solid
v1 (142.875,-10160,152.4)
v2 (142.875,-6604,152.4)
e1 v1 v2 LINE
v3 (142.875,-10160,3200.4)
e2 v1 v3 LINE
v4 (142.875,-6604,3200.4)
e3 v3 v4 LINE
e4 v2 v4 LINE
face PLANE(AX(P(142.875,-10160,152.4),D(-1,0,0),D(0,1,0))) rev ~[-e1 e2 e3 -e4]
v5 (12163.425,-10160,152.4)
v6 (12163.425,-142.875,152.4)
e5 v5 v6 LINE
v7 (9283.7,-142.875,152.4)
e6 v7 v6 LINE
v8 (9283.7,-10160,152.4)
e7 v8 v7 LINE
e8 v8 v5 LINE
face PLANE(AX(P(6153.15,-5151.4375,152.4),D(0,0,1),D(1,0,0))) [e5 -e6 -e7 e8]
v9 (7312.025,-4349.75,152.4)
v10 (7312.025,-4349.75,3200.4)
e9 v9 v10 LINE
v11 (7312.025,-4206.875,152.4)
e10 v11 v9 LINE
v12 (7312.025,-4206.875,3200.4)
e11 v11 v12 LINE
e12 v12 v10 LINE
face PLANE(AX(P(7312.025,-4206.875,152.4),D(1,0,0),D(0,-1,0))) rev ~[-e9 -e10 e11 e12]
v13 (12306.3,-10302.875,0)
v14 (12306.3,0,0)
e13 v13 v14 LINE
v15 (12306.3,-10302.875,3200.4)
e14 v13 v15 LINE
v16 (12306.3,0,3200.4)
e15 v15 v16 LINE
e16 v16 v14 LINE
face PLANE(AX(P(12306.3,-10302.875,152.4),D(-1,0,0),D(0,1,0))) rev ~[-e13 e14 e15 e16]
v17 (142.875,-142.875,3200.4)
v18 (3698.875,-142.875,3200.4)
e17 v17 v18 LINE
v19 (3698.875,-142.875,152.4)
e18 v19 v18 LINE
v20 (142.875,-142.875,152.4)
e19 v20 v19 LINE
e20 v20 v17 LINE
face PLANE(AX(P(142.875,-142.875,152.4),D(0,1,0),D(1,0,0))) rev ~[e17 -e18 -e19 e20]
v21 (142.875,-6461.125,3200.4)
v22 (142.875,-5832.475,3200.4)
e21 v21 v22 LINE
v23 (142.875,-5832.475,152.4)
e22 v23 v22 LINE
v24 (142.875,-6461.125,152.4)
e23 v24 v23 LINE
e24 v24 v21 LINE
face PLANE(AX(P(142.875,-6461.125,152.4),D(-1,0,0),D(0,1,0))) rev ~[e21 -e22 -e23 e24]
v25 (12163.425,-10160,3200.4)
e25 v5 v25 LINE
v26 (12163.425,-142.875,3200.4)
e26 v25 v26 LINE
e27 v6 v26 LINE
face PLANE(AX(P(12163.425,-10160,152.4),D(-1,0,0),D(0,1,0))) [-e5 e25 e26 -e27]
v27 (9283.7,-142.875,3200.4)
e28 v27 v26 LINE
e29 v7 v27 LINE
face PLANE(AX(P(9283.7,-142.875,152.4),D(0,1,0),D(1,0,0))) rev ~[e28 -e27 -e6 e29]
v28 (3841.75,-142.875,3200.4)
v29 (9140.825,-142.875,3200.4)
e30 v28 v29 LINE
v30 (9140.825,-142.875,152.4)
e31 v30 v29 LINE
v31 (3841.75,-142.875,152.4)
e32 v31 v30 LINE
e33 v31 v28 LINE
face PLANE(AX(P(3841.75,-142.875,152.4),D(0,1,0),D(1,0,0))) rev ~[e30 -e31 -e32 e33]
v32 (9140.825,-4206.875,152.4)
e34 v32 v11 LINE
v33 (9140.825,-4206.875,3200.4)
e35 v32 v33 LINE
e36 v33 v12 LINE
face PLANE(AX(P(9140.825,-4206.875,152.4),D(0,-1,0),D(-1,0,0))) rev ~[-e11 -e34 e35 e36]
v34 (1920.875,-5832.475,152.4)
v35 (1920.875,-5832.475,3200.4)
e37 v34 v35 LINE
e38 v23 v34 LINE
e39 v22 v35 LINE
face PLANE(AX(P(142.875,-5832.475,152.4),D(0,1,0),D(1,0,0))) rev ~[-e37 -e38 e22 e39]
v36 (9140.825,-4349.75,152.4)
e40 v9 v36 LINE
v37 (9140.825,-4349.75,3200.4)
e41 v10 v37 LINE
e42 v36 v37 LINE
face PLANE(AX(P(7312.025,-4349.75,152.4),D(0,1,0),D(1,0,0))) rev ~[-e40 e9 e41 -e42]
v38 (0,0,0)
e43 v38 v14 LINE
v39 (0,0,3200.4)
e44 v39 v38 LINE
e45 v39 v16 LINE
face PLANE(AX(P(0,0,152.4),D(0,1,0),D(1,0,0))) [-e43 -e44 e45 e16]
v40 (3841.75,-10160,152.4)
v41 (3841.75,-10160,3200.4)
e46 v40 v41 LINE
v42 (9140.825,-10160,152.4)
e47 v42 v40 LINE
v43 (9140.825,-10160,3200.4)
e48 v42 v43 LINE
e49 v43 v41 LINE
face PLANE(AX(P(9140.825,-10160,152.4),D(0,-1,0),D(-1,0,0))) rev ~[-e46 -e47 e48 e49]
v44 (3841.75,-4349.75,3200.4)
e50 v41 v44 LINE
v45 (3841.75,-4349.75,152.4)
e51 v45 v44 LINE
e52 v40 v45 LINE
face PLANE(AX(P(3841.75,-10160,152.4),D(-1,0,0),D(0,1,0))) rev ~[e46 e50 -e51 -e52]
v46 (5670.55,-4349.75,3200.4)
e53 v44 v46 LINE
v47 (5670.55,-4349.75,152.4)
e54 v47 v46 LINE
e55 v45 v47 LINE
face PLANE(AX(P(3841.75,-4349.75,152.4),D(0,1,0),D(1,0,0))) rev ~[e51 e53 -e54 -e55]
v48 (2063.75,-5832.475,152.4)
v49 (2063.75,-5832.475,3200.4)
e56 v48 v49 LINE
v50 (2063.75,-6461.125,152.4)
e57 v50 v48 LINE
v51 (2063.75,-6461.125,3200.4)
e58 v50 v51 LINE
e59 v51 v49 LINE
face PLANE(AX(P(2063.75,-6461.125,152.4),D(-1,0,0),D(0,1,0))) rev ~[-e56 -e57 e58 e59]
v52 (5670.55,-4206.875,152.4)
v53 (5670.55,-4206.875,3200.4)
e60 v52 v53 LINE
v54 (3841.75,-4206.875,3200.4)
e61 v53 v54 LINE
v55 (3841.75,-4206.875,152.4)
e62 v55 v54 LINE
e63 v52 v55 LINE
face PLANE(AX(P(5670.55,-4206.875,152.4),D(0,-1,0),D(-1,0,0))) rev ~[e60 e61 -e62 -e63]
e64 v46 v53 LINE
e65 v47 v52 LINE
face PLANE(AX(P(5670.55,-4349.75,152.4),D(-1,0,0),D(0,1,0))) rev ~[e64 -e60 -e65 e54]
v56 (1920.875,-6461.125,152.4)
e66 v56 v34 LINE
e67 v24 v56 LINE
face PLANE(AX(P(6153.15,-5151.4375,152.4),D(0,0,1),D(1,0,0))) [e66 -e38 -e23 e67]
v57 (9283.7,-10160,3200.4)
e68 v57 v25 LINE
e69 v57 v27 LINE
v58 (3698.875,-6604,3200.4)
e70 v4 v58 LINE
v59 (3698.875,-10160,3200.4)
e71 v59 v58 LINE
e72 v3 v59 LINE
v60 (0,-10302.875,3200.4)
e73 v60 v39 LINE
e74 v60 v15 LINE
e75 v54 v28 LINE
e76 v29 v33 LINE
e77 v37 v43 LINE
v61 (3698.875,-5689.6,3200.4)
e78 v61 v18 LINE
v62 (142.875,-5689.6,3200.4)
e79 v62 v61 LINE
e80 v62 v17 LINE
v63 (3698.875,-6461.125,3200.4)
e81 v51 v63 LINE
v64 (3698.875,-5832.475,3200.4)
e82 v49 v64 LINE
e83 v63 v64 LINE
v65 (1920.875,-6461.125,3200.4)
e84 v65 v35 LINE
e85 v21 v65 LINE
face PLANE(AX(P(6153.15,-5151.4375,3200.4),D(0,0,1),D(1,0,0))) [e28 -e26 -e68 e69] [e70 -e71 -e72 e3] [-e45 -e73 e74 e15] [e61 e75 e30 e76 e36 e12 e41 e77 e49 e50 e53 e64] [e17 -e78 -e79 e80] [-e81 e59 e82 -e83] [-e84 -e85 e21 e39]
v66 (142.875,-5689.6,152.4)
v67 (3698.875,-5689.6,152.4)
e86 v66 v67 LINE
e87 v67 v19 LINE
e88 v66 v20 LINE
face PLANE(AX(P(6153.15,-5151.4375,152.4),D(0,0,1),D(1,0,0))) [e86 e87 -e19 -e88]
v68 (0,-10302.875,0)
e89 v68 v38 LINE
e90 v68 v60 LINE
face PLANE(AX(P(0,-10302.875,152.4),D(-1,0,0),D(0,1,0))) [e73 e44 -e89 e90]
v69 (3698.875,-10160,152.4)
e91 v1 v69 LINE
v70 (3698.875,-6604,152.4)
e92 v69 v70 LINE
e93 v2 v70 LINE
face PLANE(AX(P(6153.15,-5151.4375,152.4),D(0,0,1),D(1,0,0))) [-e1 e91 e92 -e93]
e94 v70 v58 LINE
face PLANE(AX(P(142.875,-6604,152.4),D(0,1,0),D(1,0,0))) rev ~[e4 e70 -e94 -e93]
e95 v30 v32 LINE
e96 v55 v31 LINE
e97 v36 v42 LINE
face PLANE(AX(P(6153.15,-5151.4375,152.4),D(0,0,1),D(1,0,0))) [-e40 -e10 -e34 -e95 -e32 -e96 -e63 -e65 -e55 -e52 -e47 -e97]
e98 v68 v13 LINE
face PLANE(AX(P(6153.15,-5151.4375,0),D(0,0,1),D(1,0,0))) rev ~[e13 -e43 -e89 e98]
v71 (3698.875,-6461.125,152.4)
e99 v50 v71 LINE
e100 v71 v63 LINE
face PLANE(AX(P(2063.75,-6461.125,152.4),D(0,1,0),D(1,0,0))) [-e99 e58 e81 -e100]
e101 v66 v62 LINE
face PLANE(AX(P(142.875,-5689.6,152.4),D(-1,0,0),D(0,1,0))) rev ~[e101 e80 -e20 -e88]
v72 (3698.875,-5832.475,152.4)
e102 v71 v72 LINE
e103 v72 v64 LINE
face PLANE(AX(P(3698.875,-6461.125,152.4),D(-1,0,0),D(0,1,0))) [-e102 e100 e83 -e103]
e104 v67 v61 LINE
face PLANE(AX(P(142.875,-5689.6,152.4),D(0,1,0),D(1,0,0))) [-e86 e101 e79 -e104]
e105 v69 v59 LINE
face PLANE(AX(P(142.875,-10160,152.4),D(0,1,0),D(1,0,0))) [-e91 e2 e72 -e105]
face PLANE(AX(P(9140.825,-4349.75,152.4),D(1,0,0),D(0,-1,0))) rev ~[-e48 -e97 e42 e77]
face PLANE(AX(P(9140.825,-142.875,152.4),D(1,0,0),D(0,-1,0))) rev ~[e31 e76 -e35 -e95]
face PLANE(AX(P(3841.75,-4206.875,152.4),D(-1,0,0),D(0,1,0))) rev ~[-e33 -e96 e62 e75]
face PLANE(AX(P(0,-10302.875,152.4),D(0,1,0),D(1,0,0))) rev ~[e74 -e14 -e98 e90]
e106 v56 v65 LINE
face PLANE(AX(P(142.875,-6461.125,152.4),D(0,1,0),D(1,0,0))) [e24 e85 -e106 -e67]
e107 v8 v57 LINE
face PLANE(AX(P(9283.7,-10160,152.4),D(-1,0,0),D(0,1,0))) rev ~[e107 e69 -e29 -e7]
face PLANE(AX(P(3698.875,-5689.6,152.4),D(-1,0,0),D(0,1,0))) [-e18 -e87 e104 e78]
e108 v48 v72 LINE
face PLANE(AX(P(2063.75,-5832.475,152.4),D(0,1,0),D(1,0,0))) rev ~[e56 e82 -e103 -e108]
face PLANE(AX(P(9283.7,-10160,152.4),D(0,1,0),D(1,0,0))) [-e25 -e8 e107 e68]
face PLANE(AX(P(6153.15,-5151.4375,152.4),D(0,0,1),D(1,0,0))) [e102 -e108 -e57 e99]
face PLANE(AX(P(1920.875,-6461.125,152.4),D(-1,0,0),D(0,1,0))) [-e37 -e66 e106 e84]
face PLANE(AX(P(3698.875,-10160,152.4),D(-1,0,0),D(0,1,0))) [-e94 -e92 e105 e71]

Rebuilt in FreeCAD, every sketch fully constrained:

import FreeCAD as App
import Part
import Sketcher
Q = App.Units.Quantity


def add_polygon(sketch, points):
    """Adds a closed chain of lines whose ends are joined by coincident constraints."""
    first, n = sketch.GeometryCount, len(points)
    for a, b in zip(points, points[1:] + points[:1]):
        sketch.addGeometry(Part.LineSegment(App.Vector(*a, 0), App.Vector(*b, 0)), False)
    for i in range(n):
        sketch.addConstraint(Sketcher.Constraint("Coincident", first + i, 2, first + (i + 1) % n, 1))

doc = App.newDocument("Part")
body = doc.addObject("PartDesign::Body", "Body")

# Sketch on XY plane
sketch1 = doc.addObject("Sketcher::SketchObject", "Sketch")
body.addObject(sketch1)
sketch1.AttachmentSupport = (doc.XY_Plane, [""])
sketch1.MapMode = "FlatFace"
add_polygon(sketch1, [(0, 0), (0, -10302.875), (12306.3, -10302.875), (12306.3, 0)])  # lines 0-3
sketch1.addConstraint(Sketcher.Constraint("Vertical", 0))
sketch1.addConstraint(Sketcher.Constraint("Horizontal", 1))
sketch1.addConstraint(Sketcher.Constraint("Vertical", 2))
sketch1.addConstraint(Sketcher.Constraint("Horizontal", 3))
sketch1.addConstraint(Sketcher.Constraint("Coincident", 3, 2, -1, 1))
sketch1.addConstraint(Sketcher.Constraint("DistanceX", 1, 1, 1, 2, Q("484.5 in")))
sketch1.addConstraint(Sketcher.Constraint("DistanceY", 0, 2, 0, 1, Q("405.625 in")))
pad1 = doc.addObject("PartDesign::Pad", "Pad")
body.addObject(pad1)
pad1.Profile = sketch1
pad1.Length = Q("6 in")

# Sketch on XY plane
sketch2 = doc.addObject("Sketcher::SketchObject", "Sketch001")
body.addObject(sketch2)
sketch2.AttachmentSupport = (doc.XY_Plane, [""])
sketch2.MapMode = "FlatFace"
sketch2.AttachmentOffset = App.Placement(App.Vector(0, 0, 6 * 25.4), App.Rotation())
add_polygon(sketch2, [(0, 0), (0, -10302.875), (12306.3, -10302.875), (12306.3, 0)])  # lines 0-3
add_polygon(sketch2, [(3698.875, -10160), (142.875, -10160), (142.875, -6604), (3698.875, -6604)])  # lines 4-7
add_polygon(sketch2, [(1920.875, -6461.125), (142.875, -6461.125), (142.875, -5832.475), (1920.875, -5832.475)])  # lines 8-11
add_polygon(sketch2, [(3698.875, -6461.125), (2063.75, -6461.125), (2063.75, -5832.475), (3698.875, -5832.475)])  # lines 12-15
add_polygon(sketch2, [(3698.875, -5689.6), (142.875, -5689.6), (142.875, -142.875), (3698.875, -142.875)])  # lines 16-19
add_polygon(sketch2, [(7312.025, -4349.75), (9140.825, -4349.75), (9140.825, -10160), (3841.75, -10160), (3841.75, -4349.75), (5670.55, -4349.75), (5670.55, -4206.875), (3841.75, -4206.875), (3841.75, -142.875), (9140.825, -142.875), (9140.825, -4206.875), (7312.025, -4206.875)])  # lines 20-31
add_polygon(sketch2, [(12163.425, -10160), (9283.7, -10160), (9283.7, -142.875), (12163.425, -142.875)])  # lines 32-35
sketch2.addConstraint(Sketcher.Constraint("Vertical", 0))
sketch2.addConstraint(Sketcher.Constraint("Horizontal", 1))
sketch2.addConstraint(Sketcher.Constraint("Vertical", 2))
sketch2.addConstraint(Sketcher.Constraint("Horizontal", 3))
sketch2.addConstraint(Sketcher.Constraint("Horizontal", 4))
sketch2.addConstraint(Sketcher.Constraint("Vertical", 5))
sketch2.addConstraint(Sketcher.Constraint("Horizontal", 6))
sketch2.addConstraint(Sketcher.Constraint("Vertical", 7))
sketch2.addConstraint(Sketcher.Constraint("Horizontal", 8))
sketch2.addConstraint(Sketcher.Constraint("Vertical", 9))
sketch2.addConstraint(Sketcher.Constraint("Horizontal", 10))
sketch2.addConstraint(Sketcher.Constraint("Vertical", 11))
sketch2.addConstraint(Sketcher.Constraint("Horizontal", 12))
sketch2.addConstraint(Sketcher.Constraint("Vertical", 13))
sketch2.addConstraint(Sketcher.Constraint("Horizontal", 14))
sketch2.addConstraint(Sketcher.Constraint("Vertical", 15))
sketch2.addConstraint(Sketcher.Constraint("Horizontal", 16))
sketch2.addConstraint(Sketcher.Constraint("Vertical", 17))
sketch2.addConstraint(Sketcher.Constraint("Horizontal", 18))
sketch2.addConstraint(Sketcher.Constraint("Vertical", 19))
sketch2.addConstraint(Sketcher.Constraint("Horizontal", 20))
sketch2.addConstraint(Sketcher.Constraint("Vertical", 21))
sketch2.addConstraint(Sketcher.Constraint("Horizontal", 22))
sketch2.addConstraint(Sketcher.Constraint("Vertical", 23))
sketch2.addConstraint(Sketcher.Constraint("Horizontal", 24))
sketch2.addConstraint(Sketcher.Constraint("Vertical", 25))
sketch2.addConstraint(Sketcher.Constraint("Horizontal", 26))
sketch2.addConstraint(Sketcher.Constraint("Vertical", 27))
sketch2.addConstraint(Sketcher.Constraint("Horizontal", 28))
sketch2.addConstraint(Sketcher.Constraint("Vertical", 29))
sketch2.addConstraint(Sketcher.Constraint("Horizontal", 30))
sketch2.addConstraint(Sketcher.Constraint("Vertical", 31))
sketch2.addConstraint(Sketcher.Constraint("Horizontal", 32))
sketch2.addConstraint(Sketcher.Constraint("Vertical", 33))
sketch2.addConstraint(Sketcher.Constraint("Horizontal", 34))
sketch2.addConstraint(Sketcher.Constraint("Vertical", 35))
sketch2.addConstraint(Sketcher.Constraint("Coincident", 3, 2, -1, 1))
sketch2.addConstraint(Sketcher.Constraint("Horizontal", 11, 2, 12, 2))
sketch2.addConstraint(Sketcher.Constraint("Horizontal", 10, 2, 13, 2))
sketch2.addConstraint(Sketcher.Constraint("Horizontal", 7, 2, 21, 2))
sketch2.addConstraint(Sketcher.Constraint("Horizontal", 20, 2, 23, 2))
sketch2.addConstraint(Sketcher.Constraint("Horizontal", 18, 2, 27, 2))
sketch2.addConstraint(Sketcher.Constraint("Horizontal", 26, 2, 29, 2))
sketch2.addConstraint(Sketcher.Constraint("Horizontal", 22, 2, 32, 2))
sketch2.addConstraint(Sketcher.Constraint("Horizontal", 28, 2, 33, 2))
sketch2.addConstraint(Sketcher.Constraint("Vertical", 5, 2, 8, 2))
sketch2.addConstraint(Sketcher.Constraint("Vertical", 7, 2, 14, 2))
sketch2.addConstraint(Sketcher.Constraint("Vertical", 9, 2, 16, 2))
sketch2.addConstraint(Sketcher.Constraint("Vertical", 15, 2, 18, 2))
sketch2.addConstraint(Sketcher.Constraint("Vertical", 23, 2, 26, 2))
sketch2.addConstraint(Sketcher.Constraint("Vertical", 21, 2, 28, 2))
sketch2.addConstraint(Sketcher.Constraint("Equal", 20, 24))
sketch2.addConstraint(Sketcher.Constraint("Equal", 18, 5))
sketch2.addConstraint(Sketcher.Constraint("DistanceX", 4, 2, 4, 1, Q("140 in")))
sketch2.addConstraint(Sketcher.Constraint("DistanceX", 8, 2, 8, 1, Q("70 in")))
sketch2.addConstraint(Sketcher.Constraint("DistanceX", 20, 1, 20, 2, Q("72 in")))
sketch2.addConstraint(Sketcher.Constraint("DistanceY", 27, 1, 27, 2, Q("160 in")))
sketch2.addConstraint(Sketcher.Constraint("DistanceX", 1, 1, 1, 2, Q("484.5 in")))
sketch2.addConstraint(Sketcher.Constraint("DistanceY", 4, 2, -1, 1, Q("400 in")))
sketch2.addConstraint(Sketcher.Constraint("DistanceY", 16, 2, -1, 1, Q("224 in")))
sketch2.addConstraint(Sketcher.Constraint("DistanceY", 0, 2, 9, 2, Q("176 in")))
sketch2.addConstraint(Sketcher.Constraint("DistanceY", 9, 2, 17, 2, Q("224 in")))
sketch2.addConstraint(Sketcher.Constraint("DistanceX", 13, 2, 23, 2, Q("70 in")))
sketch2.addConstraint(Sketcher.Constraint("DistanceX", 32, 2, 1, 2, Q("119 in")))
sketch2.addConstraint(Sketcher.Constraint("DistanceX", 28, 2, 34, 2, Q("119 in")))
sketch2.addConstraint(Sketcher.Constraint("DistanceY", 9, 1, 9, 2, Q("24.75 in")))
sketch2.addConstraint(Sketcher.Constraint("DistanceY", 21, 2, 21, 1, Q("228.75 in")))
sketch2.addConstraint(Sketcher.Constraint("DistanceX", 12, 2, 12, 1, Q("64.375 in")))
sketch2.addConstraint(Sketcher.Constraint("DistanceX", 22, 2, 22, 1, Q("208.625 in")))
sketch2.addConstraint(Sketcher.Constraint("DistanceX", 32, 2, 32, 1, Q("113.375 in")))
sketch2.addConstraint(Sketcher.Constraint("DistanceY", 0, 2, 0, 1, Q("405.625 in")))
pad2 = doc.addObject("PartDesign::Pad", "Pad001")
body.addObject(pad2)
pad2.Profile = sketch2
pad2.Length = Q("120 in")

doc.recompute()
